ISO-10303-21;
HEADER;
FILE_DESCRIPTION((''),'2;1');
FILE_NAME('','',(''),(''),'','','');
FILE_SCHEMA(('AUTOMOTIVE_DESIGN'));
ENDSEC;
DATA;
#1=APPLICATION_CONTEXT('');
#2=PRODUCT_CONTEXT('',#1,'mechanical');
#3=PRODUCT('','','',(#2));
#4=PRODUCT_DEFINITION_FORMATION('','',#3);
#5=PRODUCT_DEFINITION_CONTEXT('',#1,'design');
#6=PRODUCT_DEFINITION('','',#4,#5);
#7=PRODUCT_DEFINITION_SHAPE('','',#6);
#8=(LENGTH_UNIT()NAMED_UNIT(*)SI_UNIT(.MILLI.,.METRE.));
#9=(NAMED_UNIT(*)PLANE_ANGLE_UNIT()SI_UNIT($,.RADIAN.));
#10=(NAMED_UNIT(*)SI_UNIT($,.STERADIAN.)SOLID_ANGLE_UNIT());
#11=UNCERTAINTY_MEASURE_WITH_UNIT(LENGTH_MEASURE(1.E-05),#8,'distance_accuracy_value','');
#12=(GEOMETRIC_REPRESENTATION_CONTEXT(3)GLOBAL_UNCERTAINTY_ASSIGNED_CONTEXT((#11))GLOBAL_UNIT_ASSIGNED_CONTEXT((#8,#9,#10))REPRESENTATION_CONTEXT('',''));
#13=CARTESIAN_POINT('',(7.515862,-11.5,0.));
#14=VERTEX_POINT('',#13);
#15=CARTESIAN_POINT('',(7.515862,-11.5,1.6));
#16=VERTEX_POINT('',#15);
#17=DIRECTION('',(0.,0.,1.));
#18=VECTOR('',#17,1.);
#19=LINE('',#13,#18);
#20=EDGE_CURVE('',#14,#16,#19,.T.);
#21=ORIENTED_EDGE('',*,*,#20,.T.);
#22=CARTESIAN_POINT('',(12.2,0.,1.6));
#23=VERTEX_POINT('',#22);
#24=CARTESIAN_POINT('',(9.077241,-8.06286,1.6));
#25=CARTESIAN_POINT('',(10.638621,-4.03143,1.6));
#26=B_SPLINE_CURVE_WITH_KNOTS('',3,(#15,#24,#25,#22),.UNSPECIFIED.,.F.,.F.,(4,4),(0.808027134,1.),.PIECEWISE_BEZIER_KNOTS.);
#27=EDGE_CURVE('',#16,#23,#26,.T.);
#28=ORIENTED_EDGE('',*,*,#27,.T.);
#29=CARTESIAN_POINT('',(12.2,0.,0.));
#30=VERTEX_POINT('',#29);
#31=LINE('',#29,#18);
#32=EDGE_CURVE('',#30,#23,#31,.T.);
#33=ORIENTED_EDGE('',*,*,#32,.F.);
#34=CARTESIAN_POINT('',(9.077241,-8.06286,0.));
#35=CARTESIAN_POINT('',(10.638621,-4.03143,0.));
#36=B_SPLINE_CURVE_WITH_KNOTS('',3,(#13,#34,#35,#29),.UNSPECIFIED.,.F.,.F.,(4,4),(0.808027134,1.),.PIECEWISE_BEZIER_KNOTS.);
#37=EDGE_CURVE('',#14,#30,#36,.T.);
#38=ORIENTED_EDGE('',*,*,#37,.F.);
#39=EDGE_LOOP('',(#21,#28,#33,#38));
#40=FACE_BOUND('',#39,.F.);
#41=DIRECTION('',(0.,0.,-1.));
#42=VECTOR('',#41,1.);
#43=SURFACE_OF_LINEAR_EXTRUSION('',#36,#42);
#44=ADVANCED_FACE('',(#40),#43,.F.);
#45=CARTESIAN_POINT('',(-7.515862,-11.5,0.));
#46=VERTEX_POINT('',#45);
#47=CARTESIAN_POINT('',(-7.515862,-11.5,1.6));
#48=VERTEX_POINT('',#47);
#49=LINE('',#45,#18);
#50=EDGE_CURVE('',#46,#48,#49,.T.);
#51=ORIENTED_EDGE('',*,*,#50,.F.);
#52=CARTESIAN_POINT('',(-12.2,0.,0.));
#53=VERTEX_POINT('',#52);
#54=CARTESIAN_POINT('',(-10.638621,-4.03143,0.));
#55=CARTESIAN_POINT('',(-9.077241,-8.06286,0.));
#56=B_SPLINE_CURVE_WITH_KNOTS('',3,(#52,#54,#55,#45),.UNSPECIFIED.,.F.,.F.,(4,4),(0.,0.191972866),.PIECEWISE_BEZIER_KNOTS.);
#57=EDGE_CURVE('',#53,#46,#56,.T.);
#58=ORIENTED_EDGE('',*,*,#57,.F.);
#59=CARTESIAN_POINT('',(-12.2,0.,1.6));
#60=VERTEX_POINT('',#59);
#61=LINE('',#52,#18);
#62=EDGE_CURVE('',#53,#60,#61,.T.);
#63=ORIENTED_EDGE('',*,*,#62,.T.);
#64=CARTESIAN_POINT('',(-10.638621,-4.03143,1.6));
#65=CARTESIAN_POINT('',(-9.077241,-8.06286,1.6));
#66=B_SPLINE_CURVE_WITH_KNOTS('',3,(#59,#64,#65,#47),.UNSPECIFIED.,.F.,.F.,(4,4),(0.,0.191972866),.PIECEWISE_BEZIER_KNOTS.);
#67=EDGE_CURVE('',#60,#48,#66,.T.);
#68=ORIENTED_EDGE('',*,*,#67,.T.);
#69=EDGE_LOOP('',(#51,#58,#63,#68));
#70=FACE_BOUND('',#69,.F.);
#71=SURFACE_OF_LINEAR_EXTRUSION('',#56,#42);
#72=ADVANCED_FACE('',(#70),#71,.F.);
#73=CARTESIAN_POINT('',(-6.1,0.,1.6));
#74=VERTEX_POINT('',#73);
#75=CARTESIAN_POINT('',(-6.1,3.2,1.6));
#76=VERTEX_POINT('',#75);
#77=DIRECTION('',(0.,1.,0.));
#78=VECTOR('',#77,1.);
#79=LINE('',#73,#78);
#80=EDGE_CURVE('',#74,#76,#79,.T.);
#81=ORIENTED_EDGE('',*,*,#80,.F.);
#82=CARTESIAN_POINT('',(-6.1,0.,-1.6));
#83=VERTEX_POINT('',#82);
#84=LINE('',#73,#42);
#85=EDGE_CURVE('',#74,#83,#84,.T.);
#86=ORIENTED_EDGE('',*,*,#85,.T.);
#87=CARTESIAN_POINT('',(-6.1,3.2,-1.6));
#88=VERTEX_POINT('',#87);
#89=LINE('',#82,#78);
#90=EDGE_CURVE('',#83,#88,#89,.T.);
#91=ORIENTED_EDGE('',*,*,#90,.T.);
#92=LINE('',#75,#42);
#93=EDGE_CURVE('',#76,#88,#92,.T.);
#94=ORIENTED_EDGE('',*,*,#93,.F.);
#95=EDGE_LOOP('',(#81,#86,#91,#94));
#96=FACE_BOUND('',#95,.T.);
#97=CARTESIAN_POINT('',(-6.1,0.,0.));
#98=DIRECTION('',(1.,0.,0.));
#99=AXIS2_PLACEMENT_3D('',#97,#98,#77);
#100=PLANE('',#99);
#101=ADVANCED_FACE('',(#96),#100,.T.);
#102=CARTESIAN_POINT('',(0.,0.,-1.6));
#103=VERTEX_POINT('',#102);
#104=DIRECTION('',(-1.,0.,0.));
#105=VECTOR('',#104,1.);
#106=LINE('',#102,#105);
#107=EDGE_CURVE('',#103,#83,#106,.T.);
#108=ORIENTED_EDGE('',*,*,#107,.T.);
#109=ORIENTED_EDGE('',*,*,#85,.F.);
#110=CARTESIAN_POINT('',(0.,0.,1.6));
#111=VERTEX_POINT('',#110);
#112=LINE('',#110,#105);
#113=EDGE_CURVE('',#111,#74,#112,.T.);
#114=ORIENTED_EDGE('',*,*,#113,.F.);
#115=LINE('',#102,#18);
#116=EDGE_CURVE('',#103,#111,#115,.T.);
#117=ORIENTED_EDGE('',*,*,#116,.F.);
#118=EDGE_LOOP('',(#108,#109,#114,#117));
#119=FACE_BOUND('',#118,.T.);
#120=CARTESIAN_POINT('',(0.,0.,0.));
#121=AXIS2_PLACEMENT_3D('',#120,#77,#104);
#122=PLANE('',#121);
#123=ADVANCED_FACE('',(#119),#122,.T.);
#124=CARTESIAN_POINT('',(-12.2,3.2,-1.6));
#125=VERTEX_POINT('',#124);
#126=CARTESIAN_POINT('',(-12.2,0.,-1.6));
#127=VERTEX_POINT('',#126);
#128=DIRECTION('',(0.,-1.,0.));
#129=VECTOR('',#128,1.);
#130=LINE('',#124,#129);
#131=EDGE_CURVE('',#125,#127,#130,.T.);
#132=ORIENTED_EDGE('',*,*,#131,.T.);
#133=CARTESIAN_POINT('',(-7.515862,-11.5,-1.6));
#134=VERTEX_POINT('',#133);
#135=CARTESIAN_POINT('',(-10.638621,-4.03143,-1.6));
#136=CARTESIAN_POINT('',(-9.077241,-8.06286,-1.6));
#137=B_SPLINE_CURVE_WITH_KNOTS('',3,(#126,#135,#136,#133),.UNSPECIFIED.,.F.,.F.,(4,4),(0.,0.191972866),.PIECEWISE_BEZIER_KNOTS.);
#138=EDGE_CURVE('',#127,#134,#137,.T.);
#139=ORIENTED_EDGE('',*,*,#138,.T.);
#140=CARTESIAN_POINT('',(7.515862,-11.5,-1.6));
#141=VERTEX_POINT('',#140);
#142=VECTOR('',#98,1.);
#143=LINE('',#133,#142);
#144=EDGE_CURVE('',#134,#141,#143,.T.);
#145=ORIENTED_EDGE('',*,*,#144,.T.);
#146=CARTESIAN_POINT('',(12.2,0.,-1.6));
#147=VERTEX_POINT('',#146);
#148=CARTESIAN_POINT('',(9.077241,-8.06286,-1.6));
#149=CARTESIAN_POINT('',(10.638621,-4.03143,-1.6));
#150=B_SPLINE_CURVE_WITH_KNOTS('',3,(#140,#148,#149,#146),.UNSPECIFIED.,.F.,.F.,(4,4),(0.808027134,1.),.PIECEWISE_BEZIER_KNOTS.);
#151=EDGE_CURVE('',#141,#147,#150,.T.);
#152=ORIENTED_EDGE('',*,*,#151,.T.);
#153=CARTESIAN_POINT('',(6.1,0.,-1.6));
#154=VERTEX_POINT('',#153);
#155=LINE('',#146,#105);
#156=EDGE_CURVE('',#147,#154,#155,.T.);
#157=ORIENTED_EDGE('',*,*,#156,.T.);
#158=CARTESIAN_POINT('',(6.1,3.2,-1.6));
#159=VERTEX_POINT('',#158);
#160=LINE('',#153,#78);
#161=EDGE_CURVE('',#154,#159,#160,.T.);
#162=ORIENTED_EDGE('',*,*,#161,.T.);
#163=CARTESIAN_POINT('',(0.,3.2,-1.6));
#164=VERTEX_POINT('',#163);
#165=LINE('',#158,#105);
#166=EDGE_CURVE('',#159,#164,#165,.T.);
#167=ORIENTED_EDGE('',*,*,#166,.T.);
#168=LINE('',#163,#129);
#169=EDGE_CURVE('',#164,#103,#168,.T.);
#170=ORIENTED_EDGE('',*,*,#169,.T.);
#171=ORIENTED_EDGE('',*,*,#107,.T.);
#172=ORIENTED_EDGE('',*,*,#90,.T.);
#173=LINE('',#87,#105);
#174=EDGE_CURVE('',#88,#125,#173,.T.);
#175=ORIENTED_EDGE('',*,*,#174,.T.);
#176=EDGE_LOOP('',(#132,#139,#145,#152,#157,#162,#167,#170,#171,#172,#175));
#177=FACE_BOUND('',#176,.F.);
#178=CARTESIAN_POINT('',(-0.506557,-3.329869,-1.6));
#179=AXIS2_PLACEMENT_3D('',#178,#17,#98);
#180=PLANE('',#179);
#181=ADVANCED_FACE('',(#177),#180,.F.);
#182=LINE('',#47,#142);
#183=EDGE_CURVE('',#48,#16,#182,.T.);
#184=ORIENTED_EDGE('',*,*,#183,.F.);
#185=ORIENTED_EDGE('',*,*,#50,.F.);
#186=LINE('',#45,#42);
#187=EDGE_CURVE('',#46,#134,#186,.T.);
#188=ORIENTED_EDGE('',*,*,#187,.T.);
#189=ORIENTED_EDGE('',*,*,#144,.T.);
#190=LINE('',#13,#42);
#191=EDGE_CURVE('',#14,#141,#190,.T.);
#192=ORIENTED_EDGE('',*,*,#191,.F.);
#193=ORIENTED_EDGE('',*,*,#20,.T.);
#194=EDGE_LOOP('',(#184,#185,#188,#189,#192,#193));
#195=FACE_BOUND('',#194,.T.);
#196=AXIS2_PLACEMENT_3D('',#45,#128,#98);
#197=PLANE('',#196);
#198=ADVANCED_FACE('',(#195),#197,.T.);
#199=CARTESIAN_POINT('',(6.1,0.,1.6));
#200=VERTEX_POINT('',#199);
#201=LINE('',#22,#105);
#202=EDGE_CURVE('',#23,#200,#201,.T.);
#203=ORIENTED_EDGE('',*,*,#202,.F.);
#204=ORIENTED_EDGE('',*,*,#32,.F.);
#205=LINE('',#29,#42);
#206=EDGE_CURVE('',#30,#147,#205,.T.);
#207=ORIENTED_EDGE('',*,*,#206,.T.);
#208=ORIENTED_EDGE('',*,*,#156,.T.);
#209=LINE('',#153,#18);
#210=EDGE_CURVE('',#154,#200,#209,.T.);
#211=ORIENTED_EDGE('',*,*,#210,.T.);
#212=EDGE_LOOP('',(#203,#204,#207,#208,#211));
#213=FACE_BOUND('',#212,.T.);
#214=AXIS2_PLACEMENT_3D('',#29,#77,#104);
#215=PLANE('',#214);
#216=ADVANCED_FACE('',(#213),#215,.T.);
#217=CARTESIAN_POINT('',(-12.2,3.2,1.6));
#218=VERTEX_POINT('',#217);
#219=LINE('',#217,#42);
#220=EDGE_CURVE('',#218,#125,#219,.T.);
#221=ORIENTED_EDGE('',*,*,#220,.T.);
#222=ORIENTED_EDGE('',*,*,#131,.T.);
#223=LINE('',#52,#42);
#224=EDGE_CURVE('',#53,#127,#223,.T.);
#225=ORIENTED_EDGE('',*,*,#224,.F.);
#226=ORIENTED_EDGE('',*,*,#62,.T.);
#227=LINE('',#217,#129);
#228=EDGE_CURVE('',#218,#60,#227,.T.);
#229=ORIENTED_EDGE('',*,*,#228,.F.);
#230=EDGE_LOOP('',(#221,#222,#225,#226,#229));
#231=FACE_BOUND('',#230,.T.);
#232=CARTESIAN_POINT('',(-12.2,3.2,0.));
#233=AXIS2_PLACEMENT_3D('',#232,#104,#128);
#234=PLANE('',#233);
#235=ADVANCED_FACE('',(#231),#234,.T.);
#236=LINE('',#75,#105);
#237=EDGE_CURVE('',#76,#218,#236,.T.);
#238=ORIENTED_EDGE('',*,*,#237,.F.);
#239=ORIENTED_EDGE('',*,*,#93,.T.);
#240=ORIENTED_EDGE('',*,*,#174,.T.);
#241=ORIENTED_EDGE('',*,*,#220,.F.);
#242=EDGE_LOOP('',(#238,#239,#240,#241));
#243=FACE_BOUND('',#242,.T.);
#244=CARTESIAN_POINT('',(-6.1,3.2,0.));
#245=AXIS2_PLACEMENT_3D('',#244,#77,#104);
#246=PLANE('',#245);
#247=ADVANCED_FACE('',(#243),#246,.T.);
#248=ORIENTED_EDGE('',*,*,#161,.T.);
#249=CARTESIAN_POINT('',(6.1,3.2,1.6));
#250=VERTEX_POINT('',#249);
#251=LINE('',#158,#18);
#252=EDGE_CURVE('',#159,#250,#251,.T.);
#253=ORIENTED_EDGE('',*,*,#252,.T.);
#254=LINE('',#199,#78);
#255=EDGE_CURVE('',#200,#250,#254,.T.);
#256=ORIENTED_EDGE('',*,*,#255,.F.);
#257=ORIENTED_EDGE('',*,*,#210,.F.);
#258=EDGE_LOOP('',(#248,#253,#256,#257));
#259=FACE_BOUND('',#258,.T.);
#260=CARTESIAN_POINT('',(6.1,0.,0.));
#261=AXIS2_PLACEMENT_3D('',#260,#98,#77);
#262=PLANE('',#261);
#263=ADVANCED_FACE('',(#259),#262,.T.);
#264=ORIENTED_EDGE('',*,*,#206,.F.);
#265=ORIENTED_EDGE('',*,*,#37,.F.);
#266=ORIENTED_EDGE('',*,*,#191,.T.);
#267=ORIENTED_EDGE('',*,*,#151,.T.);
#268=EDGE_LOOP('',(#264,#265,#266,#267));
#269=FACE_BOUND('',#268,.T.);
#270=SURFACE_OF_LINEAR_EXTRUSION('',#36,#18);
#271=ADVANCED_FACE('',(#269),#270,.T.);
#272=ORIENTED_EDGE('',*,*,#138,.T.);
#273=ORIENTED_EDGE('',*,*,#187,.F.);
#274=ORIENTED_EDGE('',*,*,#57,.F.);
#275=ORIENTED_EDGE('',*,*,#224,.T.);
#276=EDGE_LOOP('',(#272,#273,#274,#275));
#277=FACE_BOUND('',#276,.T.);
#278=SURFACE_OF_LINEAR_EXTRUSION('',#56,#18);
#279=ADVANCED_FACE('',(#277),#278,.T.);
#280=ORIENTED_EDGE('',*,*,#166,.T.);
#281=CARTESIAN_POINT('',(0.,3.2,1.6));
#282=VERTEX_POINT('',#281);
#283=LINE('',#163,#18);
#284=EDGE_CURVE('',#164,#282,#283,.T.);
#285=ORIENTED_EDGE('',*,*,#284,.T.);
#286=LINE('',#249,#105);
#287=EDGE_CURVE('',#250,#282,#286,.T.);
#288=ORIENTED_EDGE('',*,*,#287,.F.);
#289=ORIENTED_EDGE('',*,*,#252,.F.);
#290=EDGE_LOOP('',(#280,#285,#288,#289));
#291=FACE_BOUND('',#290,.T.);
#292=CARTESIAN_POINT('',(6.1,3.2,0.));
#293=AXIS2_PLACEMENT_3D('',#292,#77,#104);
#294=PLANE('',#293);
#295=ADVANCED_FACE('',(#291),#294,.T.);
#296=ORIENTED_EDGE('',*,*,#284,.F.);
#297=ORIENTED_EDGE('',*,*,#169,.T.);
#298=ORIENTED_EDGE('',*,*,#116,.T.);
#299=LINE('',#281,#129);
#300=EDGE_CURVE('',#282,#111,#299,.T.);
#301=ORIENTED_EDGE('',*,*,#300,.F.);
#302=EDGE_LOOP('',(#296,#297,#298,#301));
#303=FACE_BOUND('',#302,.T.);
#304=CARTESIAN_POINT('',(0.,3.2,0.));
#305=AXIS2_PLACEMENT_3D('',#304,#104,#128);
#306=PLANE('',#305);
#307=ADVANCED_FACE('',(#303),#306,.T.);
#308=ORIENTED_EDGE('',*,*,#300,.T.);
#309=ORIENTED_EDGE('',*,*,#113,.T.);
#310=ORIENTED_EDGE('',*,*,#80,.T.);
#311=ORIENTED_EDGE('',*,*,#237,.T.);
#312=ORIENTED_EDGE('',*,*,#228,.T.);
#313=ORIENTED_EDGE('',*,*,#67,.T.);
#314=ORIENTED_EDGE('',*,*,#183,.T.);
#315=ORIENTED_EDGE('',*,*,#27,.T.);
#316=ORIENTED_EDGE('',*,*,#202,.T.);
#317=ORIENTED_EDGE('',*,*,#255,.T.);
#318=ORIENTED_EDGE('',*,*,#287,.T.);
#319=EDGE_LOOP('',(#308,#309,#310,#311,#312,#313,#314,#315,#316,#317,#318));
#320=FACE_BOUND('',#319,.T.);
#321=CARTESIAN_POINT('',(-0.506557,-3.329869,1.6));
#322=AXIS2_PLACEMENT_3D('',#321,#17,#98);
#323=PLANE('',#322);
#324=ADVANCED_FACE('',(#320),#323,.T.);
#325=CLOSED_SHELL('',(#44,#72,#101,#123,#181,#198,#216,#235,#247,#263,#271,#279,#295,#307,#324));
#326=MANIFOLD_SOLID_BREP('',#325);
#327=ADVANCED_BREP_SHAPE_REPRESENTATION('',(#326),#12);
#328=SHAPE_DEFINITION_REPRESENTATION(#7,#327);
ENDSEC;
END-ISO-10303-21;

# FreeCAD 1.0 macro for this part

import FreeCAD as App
import Part
import Sketcher

V = App.Vector

doc = App.newDocument("Part")
params = doc.addObject("Spreadsheet::Sheet", "Params")
for row, (alias, value) in enumerate([
    ("sketch1_height", "3.2 mm"),
    ("pad1_length", "3.2 mm"),
], start=1):
    params.set(f"A{row}", alias)
    params.set(f"B{row}", "=" + value)
    params.setAlias(f"B{row}", alias)

body = doc.addObject("PartDesign::Body", "Body")

sketch1 = body.newObject("Sketcher::SketchObject", "Sketch")
sketch1.AttachmentSupport = (doc.getObject("XY_Plane"), [""])
sketch1.MapMode = "FlatFace"
sketch1.addGeometry([
    Part.LineSegment(V(-12.2, 3.2, 0), V(-12.2, 0, 0)),
    Part.BSplineCurve([V(-12.2, 0, 0), V(-10.638621, -4.03143, 0), V(-9.077241, -8.06286, 0), V(-7.515862, -11.5, 0)], [4, 4], [0, 0.191972866], False, 3, [1, 1, 1, 1], False),
    Part.LineSegment(V(-7.515862, -11.5, 0), V(7.515862, -11.5, 0)),
    Part.BSplineCurve([V(7.515862, -11.5, 0), V(9.077241, -8.06286, 0), V(10.638621, -4.03143, 0), V(12.2, 0, 0)], [4, 4], [0.808027134, 1], False, 3, [1, 1, 1, 1], False),
    Part.LineSegment(V(12.2, 0, 0), V(6.1, 0, 0)),
    Part.LineSegment(V(6.1, 0, 0), V(6.1, 3.2, 0)),
    Part.LineSegment(V(6.1, 3.2, 0), V(0, 3.2, 0)),
    Part.LineSegment(V(0, 3.2, 0), V(0, 0, 0)),
    Part.LineSegment(V(0, 0, 0), V(-6.1, 0, 0)),
    Part.LineSegment(V(-6.1, 0, 0), V(-6.1, 3.2, 0)),
    Part.LineSegment(V(-6.1, 3.2, 0), V(-12.2, 3.2, 0)),
], False)
sketch1.addConstraint([
    Sketcher.Constraint("Block", 1),
    Sketcher.Constraint("Block", 3),
    Sketcher.Constraint("Coincident", 0, 2, 1, 1),
    Sketcher.Constraint("Coincident", 1, 2, 2, 1),
    Sketcher.Constraint("Coincident", 2, 2, 3, 1),
    Sketcher.Constraint("Coincident", 3, 2, 4, 1),
    Sketcher.Constraint("Coincident", 4, 2, 5, 1),
    Sketcher.Constraint("Coincident", 5, 2, 6, 1),
    Sketcher.Constraint("Coincident", 6, 2, 7, 1),
    Sketcher.Constraint("Coincident", 7, 2, 8, 1),
    Sketcher.Constraint("Coincident", 8, 2, 9, 1),
    Sketcher.Constraint("Coincident", 9, 2, 10, 1),
    Sketcher.Constraint("Coincident", 10, 2, 0, 1),
    Sketcher.Constraint("Vertical", 0),
    Sketcher.Constraint("Horizontal", 4),
    Sketcher.Constraint("Vertical", 5),
    Sketcher.Constraint("Horizontal", 6),
    Sketcher.Constraint("Vertical", 7),
    Sketcher.Constraint("Horizontal", 8),
    Sketcher.Constraint("Vertical", 9),
    Sketcher.Constraint("Horizontal", 10),
    Sketcher.Constraint("Coincident", 7, 2, -1, 1),
    Sketcher.Constraint("Symmetric", 5, 2, 9, 2, -2),
    Sketcher.Constraint("Equal", 4, 6),
    Sketcher.Constraint("DistanceY", 0, 2, 0, 1, 3.2),
])
sketch1.setExpression("Constraints[24]", "Params.sketch1_height")
pad1 = body.newObject("PartDesign::Pad", "Pad")
pad1.Profile = sketch1
pad1.setExpression("Length", "Params.pad1_length")
pad1.Midplane = True

doc.recompute()
